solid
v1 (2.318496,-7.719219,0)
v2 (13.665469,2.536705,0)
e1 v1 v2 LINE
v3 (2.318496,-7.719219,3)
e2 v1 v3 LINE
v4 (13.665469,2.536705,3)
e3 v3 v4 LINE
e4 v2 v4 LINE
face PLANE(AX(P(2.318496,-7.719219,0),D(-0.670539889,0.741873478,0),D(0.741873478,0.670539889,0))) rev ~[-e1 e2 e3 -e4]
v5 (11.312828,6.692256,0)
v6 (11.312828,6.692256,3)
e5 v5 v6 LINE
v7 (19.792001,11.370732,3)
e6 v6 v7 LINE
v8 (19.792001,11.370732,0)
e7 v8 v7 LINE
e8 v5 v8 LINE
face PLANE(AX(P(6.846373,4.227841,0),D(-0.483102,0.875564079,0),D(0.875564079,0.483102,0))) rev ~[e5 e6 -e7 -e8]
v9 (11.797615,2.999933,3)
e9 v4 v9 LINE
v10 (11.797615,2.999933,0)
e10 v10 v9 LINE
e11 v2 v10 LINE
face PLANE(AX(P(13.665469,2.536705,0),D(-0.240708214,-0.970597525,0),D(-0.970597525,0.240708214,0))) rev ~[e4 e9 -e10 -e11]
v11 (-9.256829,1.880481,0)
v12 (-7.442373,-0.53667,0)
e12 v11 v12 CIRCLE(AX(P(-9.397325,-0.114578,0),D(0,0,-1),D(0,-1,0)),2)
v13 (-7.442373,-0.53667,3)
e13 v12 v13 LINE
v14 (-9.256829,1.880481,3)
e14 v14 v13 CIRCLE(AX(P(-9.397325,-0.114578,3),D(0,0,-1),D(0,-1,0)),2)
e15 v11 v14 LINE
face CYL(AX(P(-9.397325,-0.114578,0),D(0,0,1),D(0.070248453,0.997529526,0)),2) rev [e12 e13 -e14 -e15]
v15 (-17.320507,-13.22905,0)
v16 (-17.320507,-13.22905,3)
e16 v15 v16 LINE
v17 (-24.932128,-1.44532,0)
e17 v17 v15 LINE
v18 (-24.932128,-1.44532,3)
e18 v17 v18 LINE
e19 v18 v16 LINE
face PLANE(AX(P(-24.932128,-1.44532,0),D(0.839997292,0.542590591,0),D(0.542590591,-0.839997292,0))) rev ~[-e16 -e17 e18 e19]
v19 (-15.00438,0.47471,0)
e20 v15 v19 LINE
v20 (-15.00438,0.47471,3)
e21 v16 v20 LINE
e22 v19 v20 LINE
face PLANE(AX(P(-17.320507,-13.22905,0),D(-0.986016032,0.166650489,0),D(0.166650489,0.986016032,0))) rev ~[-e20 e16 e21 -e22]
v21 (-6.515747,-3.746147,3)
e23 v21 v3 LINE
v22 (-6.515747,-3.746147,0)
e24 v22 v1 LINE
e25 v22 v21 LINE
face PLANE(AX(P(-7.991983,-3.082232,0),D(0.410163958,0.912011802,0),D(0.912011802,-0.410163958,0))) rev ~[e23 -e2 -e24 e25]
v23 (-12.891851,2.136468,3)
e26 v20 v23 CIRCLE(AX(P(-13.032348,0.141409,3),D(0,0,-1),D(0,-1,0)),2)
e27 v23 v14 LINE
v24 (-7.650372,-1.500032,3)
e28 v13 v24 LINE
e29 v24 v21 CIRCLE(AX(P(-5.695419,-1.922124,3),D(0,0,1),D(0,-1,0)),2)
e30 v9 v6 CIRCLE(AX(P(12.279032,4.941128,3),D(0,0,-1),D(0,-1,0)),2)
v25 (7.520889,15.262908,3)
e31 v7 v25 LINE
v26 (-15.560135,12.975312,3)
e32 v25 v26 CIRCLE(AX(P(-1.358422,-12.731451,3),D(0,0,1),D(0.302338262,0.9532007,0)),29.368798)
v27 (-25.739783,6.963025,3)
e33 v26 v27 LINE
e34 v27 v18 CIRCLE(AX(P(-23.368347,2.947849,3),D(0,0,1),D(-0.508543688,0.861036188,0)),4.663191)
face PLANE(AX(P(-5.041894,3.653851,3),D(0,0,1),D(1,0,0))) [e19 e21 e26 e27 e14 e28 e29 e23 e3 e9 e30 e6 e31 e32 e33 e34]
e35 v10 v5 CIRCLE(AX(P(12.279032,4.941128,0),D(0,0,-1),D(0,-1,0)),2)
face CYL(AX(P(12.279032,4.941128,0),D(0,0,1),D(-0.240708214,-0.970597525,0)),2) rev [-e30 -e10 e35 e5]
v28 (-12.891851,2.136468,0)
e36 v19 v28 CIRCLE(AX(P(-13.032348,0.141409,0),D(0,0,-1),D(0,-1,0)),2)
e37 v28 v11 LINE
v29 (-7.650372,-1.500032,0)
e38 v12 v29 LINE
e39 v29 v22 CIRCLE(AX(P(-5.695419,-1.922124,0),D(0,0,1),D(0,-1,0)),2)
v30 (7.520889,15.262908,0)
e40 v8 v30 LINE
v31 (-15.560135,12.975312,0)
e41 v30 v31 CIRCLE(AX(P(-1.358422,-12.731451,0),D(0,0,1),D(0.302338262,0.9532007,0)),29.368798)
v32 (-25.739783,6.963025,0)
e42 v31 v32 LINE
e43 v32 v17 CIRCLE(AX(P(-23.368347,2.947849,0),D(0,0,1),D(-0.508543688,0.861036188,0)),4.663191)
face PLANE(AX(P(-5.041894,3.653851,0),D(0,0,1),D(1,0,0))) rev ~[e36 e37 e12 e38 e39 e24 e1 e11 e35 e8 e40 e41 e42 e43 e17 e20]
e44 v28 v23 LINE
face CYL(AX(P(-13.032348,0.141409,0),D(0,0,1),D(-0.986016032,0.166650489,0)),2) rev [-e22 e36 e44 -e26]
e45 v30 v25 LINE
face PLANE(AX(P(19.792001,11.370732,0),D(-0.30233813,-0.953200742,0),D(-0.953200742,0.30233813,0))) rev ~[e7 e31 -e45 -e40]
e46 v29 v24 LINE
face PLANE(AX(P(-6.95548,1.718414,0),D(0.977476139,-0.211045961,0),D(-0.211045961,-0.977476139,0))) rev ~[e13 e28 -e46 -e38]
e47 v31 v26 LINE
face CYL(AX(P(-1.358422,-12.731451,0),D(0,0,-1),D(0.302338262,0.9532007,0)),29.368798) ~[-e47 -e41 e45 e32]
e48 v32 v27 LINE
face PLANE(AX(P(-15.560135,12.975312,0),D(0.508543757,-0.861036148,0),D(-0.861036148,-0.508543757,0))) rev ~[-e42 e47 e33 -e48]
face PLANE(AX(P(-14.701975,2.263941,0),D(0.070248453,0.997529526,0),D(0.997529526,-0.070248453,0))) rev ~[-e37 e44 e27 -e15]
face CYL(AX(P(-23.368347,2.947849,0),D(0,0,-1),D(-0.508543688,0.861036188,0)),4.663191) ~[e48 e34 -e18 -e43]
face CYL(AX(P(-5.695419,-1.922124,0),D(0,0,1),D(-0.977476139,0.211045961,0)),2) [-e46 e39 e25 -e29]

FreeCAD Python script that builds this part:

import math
import FreeCAD as App
import Part
import Sketcher
from FreeCAD import Vector
Q = App.Units.Quantity


def edges_at(feature, points):
    """Names of the edges that pass closest to the given points."""
    edges = feature.Shape.Edges
    near = lambda p: min(range(len(edges)), key=lambda i: edges[i].distToShape(Part.Vertex(*p))[0])
    return sorted({f"Edge{near(p) + 1}" for p in points})

doc = App.newDocument("Part")
body = doc.addObject("PartDesign::Body", "Body")

# Sketch on XY plane
sketch1 = body.newObject("Sketcher::SketchObject", "Sketch")
sketch1.AttachmentSupport = (doc.getObject("XY_Plane"), [""])
sketch1.MapMode = "FlatFace"
sketch1.addGeometry([
    Part.LineSegment(Vector(-15.560135, 12.975312, 0), Vector(-25.739783, 6.963025, 0)),  # 0
    Part.ArcOfCircle(Part.Circle(Vector(-23.368347, 2.947849, 0), Vector(0, 0, 1), 4.663191), math.radians(120.566874), math.radians(250.406436)),  # 1
    Part.LineSegment(Vector(-24.932128, -1.44532, 0), Vector(-17.320507, -13.22905, 0)),  # 2
    Part.LineSegment(Vector(-17.320507, -13.22905, 0), Vector(-14.701975, 2.263941, 0)),  # 3
    Part.LineSegment(Vector(-14.701975, 2.263941, 0), Vector(-6.95548, 1.718414, 0)),  # 4
    Part.LineSegment(Vector(-6.95548, 1.718414, 0), Vector(-7.991983, -3.082232, 0)),  # 5
    Part.LineSegment(Vector(-7.991983, -3.082232, 0), Vector(2.318496, -7.719219, 0)),  # 6
    Part.LineSegment(Vector(2.318496, -7.719219, 0), Vector(13.665469, 2.536705, 0)),  # 7
    Part.LineSegment(Vector(13.665469, 2.536705, 0), Vector(6.846373, 4.227841, 0)),  # 8
    Part.LineSegment(Vector(6.846373, 4.227841, 0), Vector(19.792001, 11.370732, 0)),  # 9
    Part.LineSegment(Vector(19.792001, 11.370732, 0), Vector(7.520889, 15.262908, 0)),  # 10
    Part.ArcOfCircle(Part.Circle(Vector(-1.358422, -12.731451, 0), Vector(0, 0, 1), 29.368798), math.radians(72.401901), math.radians(118.918475)),  # 11
], False)
sketch1.addConstraint([
    Sketcher.Constraint("Tangent", 0, 2, 1, 1),
    Sketcher.Constraint("Coincident", 1, 2, 2, 1),
    Sketcher.Constraint("Coincident", 2, 2, 3, 1),
    Sketcher.Constraint("Coincident", 3, 2, 4, 1),
    Sketcher.Constraint("Coincident", 4, 2, 5, 1),
    Sketcher.Constraint("Coincident", 5, 2, 6, 1),
    Sketcher.Constraint("Coincident", 6, 2, 7, 1),
    Sketcher.Constraint("Coincident", 7, 2, 8, 1),
    Sketcher.Constraint("Coincident", 8, 2, 9, 1),
    Sketcher.Constraint("Coincident", 9, 2, 10, 1),
    Sketcher.Constraint("Tangent", 10, 2, 11, 1),
    Sketcher.Constraint("Coincident", 11, 2, 0, 1),
    Sketcher.Constraint("Radius", 11, Q("29.368798 mm")),
    Sketcher.Constraint("Radius", 1, Q("4.663191 mm")),
    Sketcher.Constraint("DistanceX", -1, 1, 9, 2, Q("19.792001 mm")),
    Sketcher.Constraint("DistanceY", 11, 3, 1, 3, Q("15.6793 mm")),
    Sketcher.Constraint("DistanceY", 2, 2, 11, 3, Q("0.497599 mm")),
    Sketcher.Constraint("Distance", 4, Q("7.76568 mm")),
    Sketcher.Constraint("Distance", 8, Q("7.025668 mm")),
    Sketcher.Constraint("Distance", 9, Q("14.785472 mm")),
    Sketcher.Constraint("DistanceY", -1, 1, 1, 3, Q("2.947849 mm")),
    Sketcher.Constraint("DistanceY", 1, 2, -1, 1, Q("1.44532 mm")),
    Sketcher.Constraint("DistanceY", -1, 1, 3, 2, Q("2.263941 mm")),
    Sketcher.Constraint("DistanceX", 4, 2, -1, 1, Q("6.95548 mm")),
    Sketcher.Constraint("DistanceY", 5, 2, -1, 1, Q("3.082232 mm")),
    Sketcher.Constraint("DistanceY", 6, 2, -1, 1, Q("7.719219 mm")),
    Sketcher.Constraint("DistanceX", -1, 1, 7, 2, Q("13.665469 mm")),
    Sketcher.Constraint("DistanceY", -1, 1, 8, 2, Q("4.227841 mm")),
    Sketcher.Constraint("DistanceX", -1, 1, 10, 2, Q("7.520889 mm")),
    Sketcher.Constraint("DistanceY", -1, 1, 11, 2, Q("12.975312 mm")),
    Sketcher.Constraint("DistanceX", 0, 2, 11, 3, Q("24.381361 mm")),
    Sketcher.Constraint("DistanceX", 1, 2, 2, 2, Q("7.611621 mm")),
    Sketcher.Constraint("DistanceX", 1, 3, 3, 2, Q("8.666372 mm")),
    Sketcher.Constraint("DistanceX", 3, 2, 5, 2, Q("6.709992 mm")),
    Sketcher.Constraint("DistanceX", 11, 3, 6, 2, Q("3.676918 mm")),
    Sketcher.Constraint("DistanceY", 4, 2, 7, 2, Q("0.818291 mm")),
])
pad1 = body.newObject("PartDesign::Pad", "Pad")
pad1.Profile = sketch1
pad1.Length = 3
doc.recompute()

fillet = body.newObject("PartDesign::Fillet", "Fillet")
fillet.Base = (pad1, edges_at(pad1, [
    (-14.702, 2.264, 1.5),
    (-6.955, 1.718, 1.5),
    (-7.992, -3.082, 1.5),
    (6.846, 4.228, 1.5),
]))
fillet.Radius = 2

doc.recompute()
